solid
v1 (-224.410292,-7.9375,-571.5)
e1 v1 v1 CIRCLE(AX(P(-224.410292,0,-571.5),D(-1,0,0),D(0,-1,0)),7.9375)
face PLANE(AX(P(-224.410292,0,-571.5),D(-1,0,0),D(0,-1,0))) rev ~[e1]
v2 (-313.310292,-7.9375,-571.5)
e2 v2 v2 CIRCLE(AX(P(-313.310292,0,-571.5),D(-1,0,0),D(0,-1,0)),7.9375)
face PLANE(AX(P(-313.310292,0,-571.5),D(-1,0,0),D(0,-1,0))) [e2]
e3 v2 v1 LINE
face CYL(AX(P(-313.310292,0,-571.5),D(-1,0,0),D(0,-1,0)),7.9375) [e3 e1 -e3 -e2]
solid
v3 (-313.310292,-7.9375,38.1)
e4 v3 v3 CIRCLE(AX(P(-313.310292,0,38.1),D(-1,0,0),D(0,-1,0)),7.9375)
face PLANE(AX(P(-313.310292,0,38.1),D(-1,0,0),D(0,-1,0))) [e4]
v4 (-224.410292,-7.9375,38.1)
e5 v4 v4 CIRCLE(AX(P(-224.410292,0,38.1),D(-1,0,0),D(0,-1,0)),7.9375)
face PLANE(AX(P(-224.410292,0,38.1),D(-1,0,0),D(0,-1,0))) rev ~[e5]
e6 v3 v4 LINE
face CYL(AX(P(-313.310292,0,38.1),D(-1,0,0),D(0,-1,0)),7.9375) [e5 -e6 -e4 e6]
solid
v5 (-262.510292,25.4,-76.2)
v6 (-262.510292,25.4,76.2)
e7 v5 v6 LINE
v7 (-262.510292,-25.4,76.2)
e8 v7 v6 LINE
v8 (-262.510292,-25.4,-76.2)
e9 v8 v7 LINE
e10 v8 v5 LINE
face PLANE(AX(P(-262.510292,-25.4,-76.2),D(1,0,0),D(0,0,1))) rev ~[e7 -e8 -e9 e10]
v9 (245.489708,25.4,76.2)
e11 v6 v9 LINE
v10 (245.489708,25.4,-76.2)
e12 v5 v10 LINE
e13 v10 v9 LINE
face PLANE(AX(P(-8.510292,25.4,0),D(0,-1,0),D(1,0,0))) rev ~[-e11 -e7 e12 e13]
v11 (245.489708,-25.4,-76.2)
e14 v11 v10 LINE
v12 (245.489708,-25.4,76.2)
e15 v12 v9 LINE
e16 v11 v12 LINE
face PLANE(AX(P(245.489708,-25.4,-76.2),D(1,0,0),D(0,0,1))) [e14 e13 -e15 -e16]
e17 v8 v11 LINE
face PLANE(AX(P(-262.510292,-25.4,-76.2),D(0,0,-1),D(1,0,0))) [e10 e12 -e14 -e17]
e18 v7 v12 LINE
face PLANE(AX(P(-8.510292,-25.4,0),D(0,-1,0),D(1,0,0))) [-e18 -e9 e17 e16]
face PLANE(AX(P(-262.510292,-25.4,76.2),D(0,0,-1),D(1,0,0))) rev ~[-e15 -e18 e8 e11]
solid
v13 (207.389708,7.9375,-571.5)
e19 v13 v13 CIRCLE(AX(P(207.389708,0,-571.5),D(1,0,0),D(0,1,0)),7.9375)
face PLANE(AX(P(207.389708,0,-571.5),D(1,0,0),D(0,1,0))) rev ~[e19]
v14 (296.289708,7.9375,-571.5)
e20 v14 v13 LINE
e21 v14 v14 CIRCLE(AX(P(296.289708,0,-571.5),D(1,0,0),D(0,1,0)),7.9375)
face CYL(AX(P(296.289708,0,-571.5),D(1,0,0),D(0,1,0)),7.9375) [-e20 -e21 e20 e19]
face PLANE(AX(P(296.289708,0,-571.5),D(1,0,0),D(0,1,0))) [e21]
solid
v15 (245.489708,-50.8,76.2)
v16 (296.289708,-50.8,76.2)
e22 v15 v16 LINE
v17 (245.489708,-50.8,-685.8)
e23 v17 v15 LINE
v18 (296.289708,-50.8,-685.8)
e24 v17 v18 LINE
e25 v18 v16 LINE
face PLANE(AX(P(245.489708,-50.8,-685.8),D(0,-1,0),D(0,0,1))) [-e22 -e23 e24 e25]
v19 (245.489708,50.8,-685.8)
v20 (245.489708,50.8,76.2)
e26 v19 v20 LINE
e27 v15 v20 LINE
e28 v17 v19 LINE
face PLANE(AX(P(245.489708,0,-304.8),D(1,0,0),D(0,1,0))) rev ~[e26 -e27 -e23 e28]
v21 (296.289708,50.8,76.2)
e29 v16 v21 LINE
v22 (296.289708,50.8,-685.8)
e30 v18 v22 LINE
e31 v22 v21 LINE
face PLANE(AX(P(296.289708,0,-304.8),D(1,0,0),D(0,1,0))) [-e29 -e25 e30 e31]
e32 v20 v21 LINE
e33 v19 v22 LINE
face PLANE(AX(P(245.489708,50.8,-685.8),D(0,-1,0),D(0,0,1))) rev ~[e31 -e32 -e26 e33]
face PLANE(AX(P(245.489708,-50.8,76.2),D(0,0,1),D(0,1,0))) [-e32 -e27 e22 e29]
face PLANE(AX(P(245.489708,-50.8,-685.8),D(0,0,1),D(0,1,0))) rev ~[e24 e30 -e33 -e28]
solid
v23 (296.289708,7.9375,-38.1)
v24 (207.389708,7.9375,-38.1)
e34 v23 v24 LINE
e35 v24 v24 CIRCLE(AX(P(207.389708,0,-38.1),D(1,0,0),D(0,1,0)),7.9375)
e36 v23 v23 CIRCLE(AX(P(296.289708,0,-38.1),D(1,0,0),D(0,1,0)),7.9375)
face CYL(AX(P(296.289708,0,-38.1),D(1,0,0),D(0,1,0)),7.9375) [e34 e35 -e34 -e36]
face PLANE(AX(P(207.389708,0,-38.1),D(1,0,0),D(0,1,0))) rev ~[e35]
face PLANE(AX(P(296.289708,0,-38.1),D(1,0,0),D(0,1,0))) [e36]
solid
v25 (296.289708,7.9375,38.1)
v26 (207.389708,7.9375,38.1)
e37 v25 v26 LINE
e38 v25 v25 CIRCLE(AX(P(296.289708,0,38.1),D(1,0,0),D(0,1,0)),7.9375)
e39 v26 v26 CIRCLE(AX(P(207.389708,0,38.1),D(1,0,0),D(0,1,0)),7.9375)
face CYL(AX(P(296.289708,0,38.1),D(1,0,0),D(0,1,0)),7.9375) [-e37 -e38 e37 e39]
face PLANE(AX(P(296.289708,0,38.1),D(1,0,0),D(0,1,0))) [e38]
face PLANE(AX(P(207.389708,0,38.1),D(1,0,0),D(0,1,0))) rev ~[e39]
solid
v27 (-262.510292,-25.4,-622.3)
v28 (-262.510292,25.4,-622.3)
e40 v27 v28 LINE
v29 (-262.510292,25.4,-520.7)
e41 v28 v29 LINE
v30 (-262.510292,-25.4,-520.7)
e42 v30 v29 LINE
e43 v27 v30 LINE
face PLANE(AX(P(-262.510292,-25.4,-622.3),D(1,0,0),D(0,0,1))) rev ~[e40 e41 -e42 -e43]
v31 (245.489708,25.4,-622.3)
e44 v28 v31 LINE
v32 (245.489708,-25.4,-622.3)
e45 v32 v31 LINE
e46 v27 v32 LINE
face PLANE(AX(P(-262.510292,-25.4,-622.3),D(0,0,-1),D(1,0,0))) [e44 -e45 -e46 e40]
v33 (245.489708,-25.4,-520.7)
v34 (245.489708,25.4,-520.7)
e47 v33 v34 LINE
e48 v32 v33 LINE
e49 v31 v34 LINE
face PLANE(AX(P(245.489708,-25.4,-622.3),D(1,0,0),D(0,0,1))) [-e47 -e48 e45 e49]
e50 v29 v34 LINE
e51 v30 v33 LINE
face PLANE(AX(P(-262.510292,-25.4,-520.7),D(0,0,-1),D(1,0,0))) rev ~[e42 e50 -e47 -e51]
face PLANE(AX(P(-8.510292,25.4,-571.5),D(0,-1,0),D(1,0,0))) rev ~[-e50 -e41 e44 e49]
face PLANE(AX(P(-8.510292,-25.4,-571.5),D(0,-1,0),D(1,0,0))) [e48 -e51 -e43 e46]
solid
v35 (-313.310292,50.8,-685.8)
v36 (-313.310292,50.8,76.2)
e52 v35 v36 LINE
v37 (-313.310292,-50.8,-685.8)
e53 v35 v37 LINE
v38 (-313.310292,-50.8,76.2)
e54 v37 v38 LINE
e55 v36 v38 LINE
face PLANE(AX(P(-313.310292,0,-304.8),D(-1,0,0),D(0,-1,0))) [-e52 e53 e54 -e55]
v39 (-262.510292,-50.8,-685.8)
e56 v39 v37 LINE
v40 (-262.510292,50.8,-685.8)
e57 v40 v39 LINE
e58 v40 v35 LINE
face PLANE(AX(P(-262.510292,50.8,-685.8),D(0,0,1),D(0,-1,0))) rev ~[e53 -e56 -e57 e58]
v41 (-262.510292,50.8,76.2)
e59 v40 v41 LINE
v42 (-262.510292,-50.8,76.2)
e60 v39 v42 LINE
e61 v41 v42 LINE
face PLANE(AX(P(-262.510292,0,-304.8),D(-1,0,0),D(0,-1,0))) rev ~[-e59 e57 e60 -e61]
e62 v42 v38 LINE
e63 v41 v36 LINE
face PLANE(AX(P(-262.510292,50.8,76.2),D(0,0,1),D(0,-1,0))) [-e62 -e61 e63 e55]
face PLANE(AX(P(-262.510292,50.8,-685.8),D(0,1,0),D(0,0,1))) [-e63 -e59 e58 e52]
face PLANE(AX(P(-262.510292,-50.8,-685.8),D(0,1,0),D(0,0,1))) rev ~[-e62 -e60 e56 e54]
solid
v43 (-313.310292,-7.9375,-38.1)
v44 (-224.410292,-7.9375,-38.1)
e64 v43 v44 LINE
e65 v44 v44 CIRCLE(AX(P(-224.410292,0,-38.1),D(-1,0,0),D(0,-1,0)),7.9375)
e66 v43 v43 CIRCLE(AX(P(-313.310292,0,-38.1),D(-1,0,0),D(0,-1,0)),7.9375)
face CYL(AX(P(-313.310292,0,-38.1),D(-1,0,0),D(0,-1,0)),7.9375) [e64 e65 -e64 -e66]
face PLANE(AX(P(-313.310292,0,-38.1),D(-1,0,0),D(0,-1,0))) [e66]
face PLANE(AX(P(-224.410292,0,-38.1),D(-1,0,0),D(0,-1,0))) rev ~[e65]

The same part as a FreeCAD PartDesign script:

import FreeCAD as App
import Part
import Sketcher
from FreeCAD import Vector
Q = App.Units.Quantity


def add_polygon(sketch, points):
    """Adds a closed chain of lines whose ends are joined by coincident constraints."""
    first, n = sketch.GeometryCount, len(points)
    for a, b in zip(points, points[1:] + points[:1]):
        sketch.addGeometry(Part.LineSegment(App.Vector(*a, 0), App.Vector(*b, 0)), False)
    for i in range(n):
        sketch.addConstraint(Sketcher.Constraint("Coincident", first + i, 2, first + (i + 1) % n, 1))

doc = App.newDocument("Part")
params = doc.addObject("Spreadsheet::Sheet", "Params")
for row, (alias, value) in enumerate([
    ("sketch1_width", "20 in"),
    ("sketch1_height", "6 in"),
    ("pad1_length", "2 in"),
    ("sketch2_width", "4 in"),
    ("sketch2_height", "30 in"),
    ("pad2_length", "2 in"),
    ("sketch3_width", "4 in"),
    ("sketch3_height", "30 in"),
    ("pad3_length", "2 in"),
    ("sketch4_width", "20 in"),
    ("sketch4_height", "4 in"),
    ("pad4_length", "2 in"),
    ("sketch5_diameter", "0.625 in"),
    ("pad5_length", "3.5 in"),
    ("sketch6_diameter", "0.625 in"),
    ("pad6_length", "3.5 in"),
], start=1):
    params.set(f"A{row}", alias)
    params.set(f"B{row}", "=" + value)
    params.setAlias(f"B{row}", alias)

body = doc.addObject("PartDesign::Body", "Body")

# Sketch on XZ plane
sketch1 = body.newObject("Sketcher::SketchObject", "Sketch")
sketch1.AttachmentSupport = (doc.getObject("XZ_Plane"), [""])
sketch1.MapMode = "FlatFace"
sketch1.AttachmentOffset = App.Placement(Vector(0, 0, 1 * 25.4), App.Rotation())
add_polygon(sketch1, [(-263, 76), (-263, -76), (245, -76), (245, 76)])  # lines 0-3
sketch1.addConstraint([
    Sketcher.Constraint("Vertical", 0),
    Sketcher.Constraint("Horizontal", 1),
    Sketcher.Constraint("Vertical", 2),
    Sketcher.Constraint("Horizontal", 3),
    Sketcher.Constraint("DistanceX", 1, 1, 1, 2, Q("20 in")),
    Sketcher.Constraint("DistanceY", 0, 2, 0, 1, Q("6 in")),
    Sketcher.Constraint("DistanceY", 0, 2, -1, 1, Q("3 in")),
    Sketcher.Constraint("DistanceX", 0, 2, -1, 1, Q("262.510292 mm")),
])
sketch1.setExpression("Constraints[8]", "Params.sketch1_width")
sketch1.setExpression("Constraints[9]", "Params.sketch1_height")
pad1 = body.newObject("PartDesign::Pad", "Pad")
pad1.Profile = sketch1
pad1.setExpression("Length", "Params.pad1_length")
pad1.Reversed = True
body2 = doc.addObject("PartDesign::Body", "Body001")

# Sketch on YZ plane
sketch2 = body2.newObject("Sketcher::SketchObject", "Sketch001")
sketch2.AttachmentSupport = (doc.getObject("YZ_Plane001"), [""])
sketch2.MapMode = "FlatFace"
sketch2.AttachmentOffset = App.Placement(Vector(0, 0, -262.510292), App.Rotation())
add_polygon(sketch2, [(51, 76), (51, -686), (-51, -686), (-51, 76)])  # lines 0-3
sketch2.addConstraint([
    Sketcher.Constraint("Vertical", 0),
    Sketcher.Constraint("Horizontal", 1),
    Sketcher.Constraint("Vertical", 2),
    Sketcher.Constraint("Horizontal", 3),
    Sketcher.Constraint("DistanceX", 1, 2, 1, 1, Q("4 in")),
    Sketcher.Constraint("DistanceY", 0, 2, 0, 1, Q("30 in")),
    Sketcher.Constraint("DistanceX", -1, 1, 0, 2, Q("2 in")),
    Sketcher.Constraint("DistanceY", 0, 2, -1, 1, Q("27 in")),
])
sketch2.setExpression("Constraints[8]", "Params.sketch2_width")
sketch2.setExpression("Constraints[9]", "Params.sketch2_height")
pad2 = body2.newObject("PartDesign::Pad", "Pad001")
pad2.Profile = sketch2
pad2.setExpression("Length", "Params.pad2_length")
pad2.Reversed = True
body3 = doc.addObject("PartDesign::Body", "Body002")

# Sketch on YZ plane
sketch3 = body3.newObject("Sketcher::SketchObject", "Sketch002")
sketch3.AttachmentSupport = (doc.getObject("YZ_Plane002"), [""])
sketch3.MapMode = "FlatFace"
sketch3.AttachmentOffset = App.Placement(Vector(0, 0, 245.489708), App.Rotation())
add_polygon(sketch3, [(-51, 76), (-51, -686), (51, -686), (51, 76)])  # lines 0-3
sketch3.addConstraint([
    Sketcher.Constraint("Vertical", 0),
    Sketcher.Constraint("Horizontal", 1),
    Sketcher.Constraint("Vertical", 2),
    Sketcher.Constraint("Horizontal", 3),
    Sketcher.Constraint("DistanceX", 1, 1, 1, 2, Q("4 in")),
    Sketcher.Constraint("DistanceY", 0, 2, 0, 1, Q("30 in")),
    Sketcher.Constraint("DistanceX", 0, 2, -1, 1, Q("2 in")),
    Sketcher.Constraint("DistanceY", 0, 2, -1, 1, Q("27 in")),
])
sketch3.setExpression("Constraints[8]", "Params.sketch3_width")
sketch3.setExpression("Constraints[9]", "Params.sketch3_height")
pad3 = body3.newObject("PartDesign::Pad", "Pad002")
pad3.Profile = sketch3
pad3.setExpression("Length", "Params.pad3_length")
body4 = doc.addObject("PartDesign::Body", "Body003")

# Sketch on XZ plane
sketch4 = body4.newObject("Sketcher::SketchObject", "Sketch003")
sketch4.AttachmentSupport = (doc.getObject("XZ_Plane003"), [""])
sketch4.MapMode = "FlatFace"
sketch4.AttachmentOffset = App.Placement(Vector(0, 0, 1 * 25.4), App.Rotation())
add_polygon(sketch4, [(-263, -521), (-263, -622), (245, -622), (245, -521)])  # lines 0-3
sketch4.addConstraint([
    Sketcher.Constraint("Vertical", 0),
    Sketcher.Constraint("Horizontal", 1),
    Sketcher.Constraint("Vertical", 2),
    Sketcher.Constraint("Horizontal", 3),
    Sketcher.Constraint("DistanceX", 1, 1, 1, 2, Q("20 in")),
    Sketcher.Constraint("DistanceY", 0, 2, 0, 1, Q("4 in")),
    Sketcher.Constraint("DistanceY", 0, 2, -1, 1, Q("24.5 in")),
    Sketcher.Constraint("DistanceX", 0, 2, -1, 1, Q("262.510292 mm")),
])
sketch4.setExpression("Constraints[8]", "Params.sketch4_width")
sketch4.setExpression("Constraints[9]", "Params.sketch4_height")
pad4 = body4.newObject("PartDesign::Pad", "Pad003")
pad4.Profile = sketch4
pad4.setExpression("Length", "Params.pad4_length")
pad4.Reversed = True
body5 = doc.addObject("PartDesign::Body", "Body004")
body5.AllowCompound = True

# Sketch on YZ plane
sketch5 = body5.newObject("Sketcher::SketchObject", "Sketch004")
sketch5.AttachmentSupport = (doc.getObject("YZ_Plane004"), [""])
sketch5.MapMode = "FlatFace"
sketch5.AttachmentOffset = App.Placement(Vector(0, 0, 296.289708), App.Rotation())
sketch5.addGeometry([
    Part.Circle(Vector(0, 38, 0), Vector(0, 0, 1), 8),
    Part.Circle(Vector(0, -38, 0), Vector(0, 0, 1), 8),
    Part.Circle(Vector(0, -572, 0), Vector(0, 0, 1), 8),
], False)
sketch5.addConstraint([
    Sketcher.Constraint("Equal", 0, 1),
    Sketcher.Constraint("Equal", 1, 2),
    Sketcher.Constraint("Symmetric", 0, 3, 1, 3, -1, 1),
    Sketcher.Constraint("PointOnObject", 0, 3, -2),
    Sketcher.Constraint("PointOnObject", 2, 3, -2),
    Sketcher.Constraint("Diameter", 0, Q("0.625 in")),
    Sketcher.Constraint("DistanceY", 1, 3, 0, 3, Q("3 in")),
    Sketcher.Constraint("DistanceY", 2, 3, 1, 3, Q("21 in")),
])
sketch5.setExpression("Constraints[5]", "Params.sketch5_diameter")
pad5 = body5.newObject("PartDesign::Pad", "Pad004")
pad5.Profile = sketch5
pad5.setExpression("Length", "Params.pad5_length")
pad5.Reversed = True
body6 = doc.addObject("PartDesign::Body", "Body005")
body6.AllowCompound = True

# Sketch on YZ plane
sketch6 = body6.newObject("Sketcher::SketchObject", "Sketch005")
sketch6.AttachmentSupport = (doc.getObject("YZ_Plane005"), [""])
sketch6.MapMode = "FlatFace"
sketch6.AttachmentOffset = App.Placement(Vector(0, 0, -313.310292), App.Rotation())
sketch6.addGeometry([
    Part.Circle(Vector(0, 38, 0), Vector(0, 0, 1), 8),
    Part.Circle(Vector(0, -38, 0), Vector(0, 0, 1), 8),
    Part.Circle(Vector(0, -572, 0), Vector(0, 0, 1), 8),
], False)
sketch6.addConstraint([
    Sketcher.Constraint("Equal", 0, 1),
    Sketcher.Constraint("Equal", 1, 2),
    Sketcher.Constraint("Symmetric", 0, 3, 1, 3, -1, 1),
    Sketcher.Constraint("PointOnObject", 0, 3, -2),
    Sketcher.Constraint("PointOnObject", 2, 3, -2),
    Sketcher.Constraint("Diameter", 0, Q("0.625 in")),
    Sketcher.Constraint("DistanceY", 1, 3, 0, 3, Q("3 in")),
    Sketcher.Constraint("DistanceY", 2, 3, 1, 3, Q("21 in")),
])
sketch6.setExpression("Constraints[5]", "Params.sketch6_diameter")
pad6 = body6.newObject("PartDesign::Pad", "Pad005")
pad6.Profile = sketch6
pad6.setExpression("Length", "Params.pad6_length")

doc.recompute()
